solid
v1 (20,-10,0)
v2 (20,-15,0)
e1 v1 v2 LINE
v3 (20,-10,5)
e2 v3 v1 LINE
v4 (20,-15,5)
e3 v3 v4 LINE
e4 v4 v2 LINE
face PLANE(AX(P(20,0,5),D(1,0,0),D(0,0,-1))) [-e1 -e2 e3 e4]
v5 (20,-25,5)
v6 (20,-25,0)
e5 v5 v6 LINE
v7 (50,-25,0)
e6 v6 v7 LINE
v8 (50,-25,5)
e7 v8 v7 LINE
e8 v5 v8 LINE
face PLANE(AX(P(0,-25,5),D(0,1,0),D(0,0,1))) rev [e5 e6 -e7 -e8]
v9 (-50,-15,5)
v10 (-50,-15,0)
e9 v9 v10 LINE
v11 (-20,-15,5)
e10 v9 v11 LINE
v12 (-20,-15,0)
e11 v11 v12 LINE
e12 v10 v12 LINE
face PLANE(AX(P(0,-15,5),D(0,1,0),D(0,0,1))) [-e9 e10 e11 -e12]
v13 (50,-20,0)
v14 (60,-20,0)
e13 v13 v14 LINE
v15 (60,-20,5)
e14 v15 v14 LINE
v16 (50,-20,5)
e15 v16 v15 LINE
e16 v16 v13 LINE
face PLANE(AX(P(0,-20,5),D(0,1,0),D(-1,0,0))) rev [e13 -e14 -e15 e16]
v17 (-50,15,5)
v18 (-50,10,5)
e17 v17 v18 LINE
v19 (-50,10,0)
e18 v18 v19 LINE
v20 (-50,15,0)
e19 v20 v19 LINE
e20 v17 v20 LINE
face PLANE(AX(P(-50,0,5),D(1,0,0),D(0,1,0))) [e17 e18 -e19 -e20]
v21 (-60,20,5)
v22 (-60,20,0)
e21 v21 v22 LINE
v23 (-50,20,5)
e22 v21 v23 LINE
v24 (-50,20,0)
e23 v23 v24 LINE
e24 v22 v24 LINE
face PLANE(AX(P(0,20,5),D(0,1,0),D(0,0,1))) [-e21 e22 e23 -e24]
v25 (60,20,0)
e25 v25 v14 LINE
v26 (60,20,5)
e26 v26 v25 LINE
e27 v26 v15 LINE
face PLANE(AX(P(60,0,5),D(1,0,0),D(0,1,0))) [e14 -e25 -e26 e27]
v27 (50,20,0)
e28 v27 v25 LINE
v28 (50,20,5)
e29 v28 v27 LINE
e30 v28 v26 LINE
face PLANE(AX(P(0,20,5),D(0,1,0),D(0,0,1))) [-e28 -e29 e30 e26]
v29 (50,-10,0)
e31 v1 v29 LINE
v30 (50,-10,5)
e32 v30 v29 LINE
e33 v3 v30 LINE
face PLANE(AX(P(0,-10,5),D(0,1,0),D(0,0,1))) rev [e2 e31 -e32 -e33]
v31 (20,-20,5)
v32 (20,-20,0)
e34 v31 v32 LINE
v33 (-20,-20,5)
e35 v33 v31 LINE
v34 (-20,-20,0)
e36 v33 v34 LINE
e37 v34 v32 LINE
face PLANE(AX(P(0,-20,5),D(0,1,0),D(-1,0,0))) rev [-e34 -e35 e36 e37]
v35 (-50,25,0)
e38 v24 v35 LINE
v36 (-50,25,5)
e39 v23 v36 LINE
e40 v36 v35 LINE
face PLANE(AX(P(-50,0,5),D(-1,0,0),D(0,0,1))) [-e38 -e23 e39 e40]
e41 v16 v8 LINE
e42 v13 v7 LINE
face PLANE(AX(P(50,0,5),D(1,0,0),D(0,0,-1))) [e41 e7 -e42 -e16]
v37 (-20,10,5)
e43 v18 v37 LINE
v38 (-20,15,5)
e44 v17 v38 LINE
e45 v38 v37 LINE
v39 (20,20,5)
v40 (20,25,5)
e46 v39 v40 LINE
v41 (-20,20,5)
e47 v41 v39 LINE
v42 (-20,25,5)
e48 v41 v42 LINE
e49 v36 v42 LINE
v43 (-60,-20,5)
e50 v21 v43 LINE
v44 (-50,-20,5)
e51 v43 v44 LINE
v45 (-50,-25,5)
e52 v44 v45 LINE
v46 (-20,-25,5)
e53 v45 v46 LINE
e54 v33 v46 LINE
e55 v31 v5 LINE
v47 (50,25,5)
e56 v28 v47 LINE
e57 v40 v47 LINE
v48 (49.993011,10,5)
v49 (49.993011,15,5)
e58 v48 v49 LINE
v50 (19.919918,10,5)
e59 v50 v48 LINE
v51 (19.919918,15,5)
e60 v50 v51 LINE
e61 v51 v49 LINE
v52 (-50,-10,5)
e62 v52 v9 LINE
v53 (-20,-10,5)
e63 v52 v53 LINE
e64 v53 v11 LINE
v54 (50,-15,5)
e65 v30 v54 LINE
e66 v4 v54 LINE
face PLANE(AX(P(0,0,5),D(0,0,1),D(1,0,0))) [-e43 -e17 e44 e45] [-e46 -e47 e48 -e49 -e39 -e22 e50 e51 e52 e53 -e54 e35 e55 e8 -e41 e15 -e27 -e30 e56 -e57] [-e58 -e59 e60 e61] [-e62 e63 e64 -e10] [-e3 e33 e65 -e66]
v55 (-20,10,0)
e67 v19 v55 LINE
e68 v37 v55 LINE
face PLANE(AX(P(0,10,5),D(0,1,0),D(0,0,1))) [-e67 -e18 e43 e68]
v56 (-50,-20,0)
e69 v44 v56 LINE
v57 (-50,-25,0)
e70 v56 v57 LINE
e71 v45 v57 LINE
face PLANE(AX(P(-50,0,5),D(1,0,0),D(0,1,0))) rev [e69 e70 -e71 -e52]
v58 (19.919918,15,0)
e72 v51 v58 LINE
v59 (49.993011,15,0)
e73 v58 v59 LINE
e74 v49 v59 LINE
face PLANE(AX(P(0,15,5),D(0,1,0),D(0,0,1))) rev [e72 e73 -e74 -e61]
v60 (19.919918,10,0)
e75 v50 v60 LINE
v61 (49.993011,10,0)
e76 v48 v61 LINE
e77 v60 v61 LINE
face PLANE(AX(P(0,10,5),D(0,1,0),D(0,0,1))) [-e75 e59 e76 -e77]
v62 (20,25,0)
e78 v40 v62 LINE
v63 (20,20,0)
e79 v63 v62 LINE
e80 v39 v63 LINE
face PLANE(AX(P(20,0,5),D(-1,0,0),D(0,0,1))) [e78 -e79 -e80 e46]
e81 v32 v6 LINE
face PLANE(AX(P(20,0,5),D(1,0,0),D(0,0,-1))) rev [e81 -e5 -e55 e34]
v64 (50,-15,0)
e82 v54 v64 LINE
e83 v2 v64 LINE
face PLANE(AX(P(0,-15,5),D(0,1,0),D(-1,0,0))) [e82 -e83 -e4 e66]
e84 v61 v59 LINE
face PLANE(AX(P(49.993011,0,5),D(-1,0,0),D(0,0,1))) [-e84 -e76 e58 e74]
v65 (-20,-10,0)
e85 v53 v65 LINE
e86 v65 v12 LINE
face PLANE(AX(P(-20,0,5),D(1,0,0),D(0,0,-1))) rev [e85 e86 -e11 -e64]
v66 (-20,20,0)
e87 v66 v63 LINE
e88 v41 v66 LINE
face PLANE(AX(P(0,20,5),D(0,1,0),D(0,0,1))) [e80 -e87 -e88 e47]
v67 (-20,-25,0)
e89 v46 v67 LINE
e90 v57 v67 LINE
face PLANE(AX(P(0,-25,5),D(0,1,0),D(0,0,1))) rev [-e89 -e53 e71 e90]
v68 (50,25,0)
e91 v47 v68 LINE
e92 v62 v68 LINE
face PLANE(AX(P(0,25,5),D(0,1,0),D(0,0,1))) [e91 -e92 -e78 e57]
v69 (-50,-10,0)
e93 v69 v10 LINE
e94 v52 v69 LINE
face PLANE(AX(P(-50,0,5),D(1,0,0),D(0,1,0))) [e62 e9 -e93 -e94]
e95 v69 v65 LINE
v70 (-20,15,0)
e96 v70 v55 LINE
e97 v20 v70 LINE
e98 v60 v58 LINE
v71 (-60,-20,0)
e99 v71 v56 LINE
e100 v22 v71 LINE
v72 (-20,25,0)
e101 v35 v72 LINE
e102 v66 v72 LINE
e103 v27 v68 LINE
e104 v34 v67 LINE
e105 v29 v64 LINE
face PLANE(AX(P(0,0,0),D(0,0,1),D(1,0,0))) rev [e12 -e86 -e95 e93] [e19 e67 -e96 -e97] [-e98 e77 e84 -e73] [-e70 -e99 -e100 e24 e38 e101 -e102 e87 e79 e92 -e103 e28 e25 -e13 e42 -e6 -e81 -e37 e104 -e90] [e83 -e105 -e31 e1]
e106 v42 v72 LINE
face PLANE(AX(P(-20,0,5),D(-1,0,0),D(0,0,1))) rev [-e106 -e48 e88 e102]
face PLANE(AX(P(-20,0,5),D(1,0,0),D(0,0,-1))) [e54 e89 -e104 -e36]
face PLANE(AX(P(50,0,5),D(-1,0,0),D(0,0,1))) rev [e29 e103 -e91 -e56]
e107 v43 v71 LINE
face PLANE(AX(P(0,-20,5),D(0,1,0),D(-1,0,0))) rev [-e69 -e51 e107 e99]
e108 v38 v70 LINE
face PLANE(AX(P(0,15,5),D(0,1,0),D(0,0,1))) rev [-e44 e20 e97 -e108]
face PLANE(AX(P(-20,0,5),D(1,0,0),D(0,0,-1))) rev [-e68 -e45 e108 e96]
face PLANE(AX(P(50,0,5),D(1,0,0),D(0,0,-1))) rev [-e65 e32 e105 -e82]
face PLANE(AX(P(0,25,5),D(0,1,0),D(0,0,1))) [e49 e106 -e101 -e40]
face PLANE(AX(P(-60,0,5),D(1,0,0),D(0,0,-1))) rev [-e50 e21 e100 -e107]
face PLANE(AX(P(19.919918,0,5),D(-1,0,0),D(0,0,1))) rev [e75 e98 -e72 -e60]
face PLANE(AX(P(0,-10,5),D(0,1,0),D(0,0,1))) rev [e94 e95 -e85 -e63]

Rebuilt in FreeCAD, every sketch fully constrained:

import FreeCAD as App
import Part
import Sketcher
Q = App.Units.Quantity

doc = App.newDocument("Part")
body = doc.addObject("PartDesign::Body", "Body")

sketch1 = body.newObject("Sketcher::SketchObject", "Sketch")
sketch1.AttachmentSupport = (doc.getObject("XY_Plane"), [""])
sketch1.MapMode = "FlatFace"
sketch1.addGeometry([
    Part.LineSegment(App.Vector(-60, 20, 0), App.Vector(-60, -20, 0)),
    Part.LineSegment(App.Vector(-60, -20, 0), App.Vector(-50, -20, 0)),
    Part.LineSegment(App.Vector(-50, -20, 0), App.Vector(-50, -25, 0)),
    Part.LineSegment(App.Vector(-50, -25, 0), App.Vector(-20, -25, 0)),
    Part.LineSegment(App.Vector(-20, -25, 0), App.Vector(-20, -20, 0)),
    Part.LineSegment(App.Vector(-20, -20, 0), App.Vector(20, -20, 0)),
    Part.LineSegment(App.Vector(20, -20, 0), App.Vector(20, -25, 0)),
    Part.LineSegment(App.Vector(20, -25, 0), App.Vector(50, -25, 0)),
    Part.LineSegment(App.Vector(50, -25, 0), App.Vector(50, -20, 0)),
    Part.LineSegment(App.Vector(50, -20, 0), App.Vector(60, -20, 0)),
    Part.LineSegment(App.Vector(60, -20, 0), App.Vector(60, 20, 0)),
    Part.LineSegment(App.Vector(60, 20, 0), App.Vector(50, 20, 0)),
    Part.LineSegment(App.Vector(50, 20, 0), App.Vector(50, 25, 0)),
    Part.LineSegment(App.Vector(50, 25, 0), App.Vector(20, 25, 0)),
    Part.LineSegment(App.Vector(20, 25, 0), App.Vector(20, 20, 0)),
    Part.LineSegment(App.Vector(20, 20, 0), App.Vector(-20, 20, 0)),
    Part.LineSegment(App.Vector(-20, 20, 0), App.Vector(-20, 25, 0)),
    Part.LineSegment(App.Vector(-20, 25, 0), App.Vector(-50, 25, 0)),
    Part.LineSegment(App.Vector(-50, 25, 0), App.Vector(-50, 20, 0)),
    Part.LineSegment(App.Vector(-50, 20, 0), App.Vector(-60, 20, 0)),
    Part.LineSegment(App.Vector(-20, -15, 0), App.Vector(-50, -15, 0)),
    Part.LineSegment(App.Vector(-50, -15, 0), App.Vector(-50, -10, 0)),
    Part.LineSegment(App.Vector(-50, -10, 0), App.Vector(-20, -10, 0)),
    Part.LineSegment(App.Vector(-20, -10, 0), App.Vector(-20, -15, 0)),
    Part.LineSegment(App.Vector(50, -15, 0), App.Vector(20, -15, 0)),
    Part.LineSegment(App.Vector(20, -15, 0), App.Vector(20, -10, 0)),
    Part.LineSegment(App.Vector(20, -10, 0), App.Vector(50, -10, 0)),
    Part.LineSegment(App.Vector(50, -10, 0), App.Vector(50, -15, 0)),
    Part.LineSegment(App.Vector(-20, 10, 0), App.Vector(-50, 10, 0)),
    Part.LineSegment(App.Vector(-50, 10, 0), App.Vector(-50, 15, 0)),
    Part.LineSegment(App.Vector(-50, 15, 0), App.Vector(-20, 15, 0)),
    Part.LineSegment(App.Vector(-20, 15, 0), App.Vector(-20, 10, 0)),
    Part.LineSegment(App.Vector(50, 10, 0), App.Vector(20, 10, 0)),
    Part.LineSegment(App.Vector(20, 10, 0), App.Vector(20, 15, 0)),
    Part.LineSegment(App.Vector(20, 15, 0), App.Vector(50, 15, 0)),
    Part.LineSegment(App.Vector(50, 15, 0), App.Vector(50, 10, 0)),
], False)
sketch1.addConstraint([
    Sketcher.Constraint("Coincident", 0, 2, 1, 1),
    Sketcher.Constraint("Coincident", 1, 2, 2, 1),
    Sketcher.Constraint("Coincident", 2, 2, 3, 1),
    Sketcher.Constraint("Coincident", 3, 2, 4, 1),
    Sketcher.Constraint("Coincident", 4, 2, 5, 1),
    Sketcher.Constraint("Coincident", 5, 2, 6, 1),
    Sketcher.Constraint("Coincident", 6, 2, 7, 1),
    Sketcher.Constraint("Coincident", 7, 2, 8, 1),
    Sketcher.Constraint("Coincident", 8, 2, 9, 1),
    Sketcher.Constraint("Coincident", 9, 2, 10, 1),
    Sketcher.Constraint("Coincident", 10, 2, 11, 1),
    Sketcher.Constraint("Coincident", 11, 2, 12, 1),
    Sketcher.Constraint("Coincident", 12, 2, 13, 1),
    Sketcher.Constraint("Coincident", 13, 2, 14, 1),
    Sketcher.Constraint("Coincident", 14, 2, 15, 1),
    Sketcher.Constraint("Coincident", 15, 2, 16, 1),
    Sketcher.Constraint("Coincident", 16, 2, 17, 1),
    Sketcher.Constraint("Coincident", 17, 2, 18, 1),
    Sketcher.Constraint("Coincident", 18, 2, 19, 1),
    Sketcher.Constraint("Coincident", 19, 2, 0, 1),
    Sketcher.Constraint("Coincident", 20, 2, 21, 1),
    Sketcher.Constraint("Coincident", 21, 2, 22, 1),
    Sketcher.Constraint("Coincident", 22, 2, 23, 1),
    Sketcher.Constraint("Coincident", 23, 2, 20, 1),
    Sketcher.Constraint("Coincident", 24, 2, 25, 1),
    Sketcher.Constraint("Coincident", 25, 2, 26, 1),
    Sketcher.Constraint("Coincident", 26, 2, 27, 1),
    Sketcher.Constraint("Coincident", 27, 2, 24, 1),
    Sketcher.Constraint("Coincident", 28, 2, 29, 1),
    Sketcher.Constraint("Coincident", 29, 2, 30, 1),
    Sketcher.Constraint("Coincident", 30, 2, 31, 1),
    Sketcher.Constraint("Coincident", 31, 2, 28, 1),
    Sketcher.Constraint("Coincident", 32, 2, 33, 1),
    Sketcher.Constraint("Coincident", 33, 2, 34, 1),
    Sketcher.Constraint("Coincident", 34, 2, 35, 1),
    Sketcher.Constraint("Coincident", 35, 2, 32, 1),
    Sketcher.Constraint("Vertical", 0),
    Sketcher.Constraint("Horizontal", 1),
    Sketcher.Constraint("Vertical", 2),
    Sketcher.Constraint("Horizontal", 3),
    Sketcher.Constraint("Vertical", 4),
    Sketcher.Constraint("Horizontal", 5),
    Sketcher.Constraint("Vertical", 6),
    Sketcher.Constraint("Horizontal", 7),
    Sketcher.Constraint("Vertical", 8),
    Sketcher.Constraint("Horizontal", 9),
    Sketcher.Constraint("Vertical", 10),
    Sketcher.Constraint("Horizontal", 11),
    Sketcher.Constraint("Vertical", 12),
    Sketcher.Constraint("Horizontal", 13),
    Sketcher.Constraint("Vertical", 14),
    Sketcher.Constraint("Horizontal", 15),
    Sketcher.Constraint("Vertical", 16),
    Sketcher.Constraint("Horizontal", 17),
    Sketcher.Constraint("Vertical", 18),
    Sketcher.Constraint("Horizontal", 19),
    Sketcher.Constraint("Horizontal", 20),
    Sketcher.Constraint("Vertical", 21),
    Sketcher.Constraint("Horizontal", 22),
    Sketcher.Constraint("Vertical", 23),
    Sketcher.Constraint("Horizontal", 24),
    Sketcher.Constraint("Vertical", 25),
    Sketcher.Constraint("Horizontal", 26),
    Sketcher.Constraint("Vertical", 27),
    Sketcher.Constraint("Horizontal", 28),
    Sketcher.Constraint("Vertical", 29),
    Sketcher.Constraint("Horizontal", 30),
    Sketcher.Constraint("Vertical", 31),
    Sketcher.Constraint("Horizontal", 32),
    Sketcher.Constraint("Vertical", 33),
    Sketcher.Constraint("Horizontal", 34),
    Sketcher.Constraint("Vertical", 35),
    Sketcher.Constraint("Symmetric", 0, 2, 10, 2, -1, 1),
    Sketcher.Constraint("Symmetric", 2, 2, 12, 2, -1, 1),
    Sketcher.Constraint("Symmetric", 4, 2, 14, 2, -1, 1),
    Sketcher.Constraint("Symmetric", 6, 2, 16, 2, -1, 1),
    Sketcher.Constraint("Symmetric", 8, 2, 18, 2, -1, 1),
    Sketcher.Constraint("Symmetric", 26, 2, 28, 2, -1, 1),
    Sketcher.Constraint("Symmetric", 24, 2, 30, 2, -1, 1),
    Sketcher.Constraint("Symmetric", 3, 2, 6, 2, -2),
    Sketcher.Constraint("Symmetric", 1, 2, 8, 2, -2),
    Sketcher.Constraint("Symmetric", 23, 2, 24, 2, -2),
    Sketcher.Constraint("Symmetric", 21, 2, 26, 2, -2),
    Sketcher.Constraint("Horizontal", 1, 2, 4, 2),
    Sketcher.Constraint("Horizontal", 31, 2, 32, 2),
    Sketcher.Constraint("Horizontal", 30, 2, 33, 2),
    Sketcher.Constraint("Vertical", 18, 2, 20, 2),
    Sketcher.Constraint("Vertical", 16, 2, 22, 2),
    Sketcher.Constraint("Equal", 15, 0),
    Sketcher.Constraint("Equal", 18, 21),
    Sketcher.Constraint("DistanceX", 1, 1, 1, 2, Q("10 mm")),
    Sketcher.Constraint("DistanceX", 3, 1, 3, 2, Q("30 mm")),
    Sketcher.Constraint("DistanceX", 5, 1, 5, 2, Q("40 mm")),
    Sketcher.Constraint("DistanceY", 2, 2, 2, 1, Q("5 mm")),
    Sketcher.Constraint("DistanceY", 20, 2, -1, 1, Q("15 mm")),
    Sketcher.Constraint("DistanceX", 32, 2, 32, 1, Q("30.073093 mm")),
    Sketcher.Constraint("DistanceX", -1, 1, 34, 2, Q("49.993011 mm")),
])
pad1 = body.newObject("PartDesign::Pad", "Pad")
pad1.Profile = sketch1
pad1.Length = 5

doc.recompute()
